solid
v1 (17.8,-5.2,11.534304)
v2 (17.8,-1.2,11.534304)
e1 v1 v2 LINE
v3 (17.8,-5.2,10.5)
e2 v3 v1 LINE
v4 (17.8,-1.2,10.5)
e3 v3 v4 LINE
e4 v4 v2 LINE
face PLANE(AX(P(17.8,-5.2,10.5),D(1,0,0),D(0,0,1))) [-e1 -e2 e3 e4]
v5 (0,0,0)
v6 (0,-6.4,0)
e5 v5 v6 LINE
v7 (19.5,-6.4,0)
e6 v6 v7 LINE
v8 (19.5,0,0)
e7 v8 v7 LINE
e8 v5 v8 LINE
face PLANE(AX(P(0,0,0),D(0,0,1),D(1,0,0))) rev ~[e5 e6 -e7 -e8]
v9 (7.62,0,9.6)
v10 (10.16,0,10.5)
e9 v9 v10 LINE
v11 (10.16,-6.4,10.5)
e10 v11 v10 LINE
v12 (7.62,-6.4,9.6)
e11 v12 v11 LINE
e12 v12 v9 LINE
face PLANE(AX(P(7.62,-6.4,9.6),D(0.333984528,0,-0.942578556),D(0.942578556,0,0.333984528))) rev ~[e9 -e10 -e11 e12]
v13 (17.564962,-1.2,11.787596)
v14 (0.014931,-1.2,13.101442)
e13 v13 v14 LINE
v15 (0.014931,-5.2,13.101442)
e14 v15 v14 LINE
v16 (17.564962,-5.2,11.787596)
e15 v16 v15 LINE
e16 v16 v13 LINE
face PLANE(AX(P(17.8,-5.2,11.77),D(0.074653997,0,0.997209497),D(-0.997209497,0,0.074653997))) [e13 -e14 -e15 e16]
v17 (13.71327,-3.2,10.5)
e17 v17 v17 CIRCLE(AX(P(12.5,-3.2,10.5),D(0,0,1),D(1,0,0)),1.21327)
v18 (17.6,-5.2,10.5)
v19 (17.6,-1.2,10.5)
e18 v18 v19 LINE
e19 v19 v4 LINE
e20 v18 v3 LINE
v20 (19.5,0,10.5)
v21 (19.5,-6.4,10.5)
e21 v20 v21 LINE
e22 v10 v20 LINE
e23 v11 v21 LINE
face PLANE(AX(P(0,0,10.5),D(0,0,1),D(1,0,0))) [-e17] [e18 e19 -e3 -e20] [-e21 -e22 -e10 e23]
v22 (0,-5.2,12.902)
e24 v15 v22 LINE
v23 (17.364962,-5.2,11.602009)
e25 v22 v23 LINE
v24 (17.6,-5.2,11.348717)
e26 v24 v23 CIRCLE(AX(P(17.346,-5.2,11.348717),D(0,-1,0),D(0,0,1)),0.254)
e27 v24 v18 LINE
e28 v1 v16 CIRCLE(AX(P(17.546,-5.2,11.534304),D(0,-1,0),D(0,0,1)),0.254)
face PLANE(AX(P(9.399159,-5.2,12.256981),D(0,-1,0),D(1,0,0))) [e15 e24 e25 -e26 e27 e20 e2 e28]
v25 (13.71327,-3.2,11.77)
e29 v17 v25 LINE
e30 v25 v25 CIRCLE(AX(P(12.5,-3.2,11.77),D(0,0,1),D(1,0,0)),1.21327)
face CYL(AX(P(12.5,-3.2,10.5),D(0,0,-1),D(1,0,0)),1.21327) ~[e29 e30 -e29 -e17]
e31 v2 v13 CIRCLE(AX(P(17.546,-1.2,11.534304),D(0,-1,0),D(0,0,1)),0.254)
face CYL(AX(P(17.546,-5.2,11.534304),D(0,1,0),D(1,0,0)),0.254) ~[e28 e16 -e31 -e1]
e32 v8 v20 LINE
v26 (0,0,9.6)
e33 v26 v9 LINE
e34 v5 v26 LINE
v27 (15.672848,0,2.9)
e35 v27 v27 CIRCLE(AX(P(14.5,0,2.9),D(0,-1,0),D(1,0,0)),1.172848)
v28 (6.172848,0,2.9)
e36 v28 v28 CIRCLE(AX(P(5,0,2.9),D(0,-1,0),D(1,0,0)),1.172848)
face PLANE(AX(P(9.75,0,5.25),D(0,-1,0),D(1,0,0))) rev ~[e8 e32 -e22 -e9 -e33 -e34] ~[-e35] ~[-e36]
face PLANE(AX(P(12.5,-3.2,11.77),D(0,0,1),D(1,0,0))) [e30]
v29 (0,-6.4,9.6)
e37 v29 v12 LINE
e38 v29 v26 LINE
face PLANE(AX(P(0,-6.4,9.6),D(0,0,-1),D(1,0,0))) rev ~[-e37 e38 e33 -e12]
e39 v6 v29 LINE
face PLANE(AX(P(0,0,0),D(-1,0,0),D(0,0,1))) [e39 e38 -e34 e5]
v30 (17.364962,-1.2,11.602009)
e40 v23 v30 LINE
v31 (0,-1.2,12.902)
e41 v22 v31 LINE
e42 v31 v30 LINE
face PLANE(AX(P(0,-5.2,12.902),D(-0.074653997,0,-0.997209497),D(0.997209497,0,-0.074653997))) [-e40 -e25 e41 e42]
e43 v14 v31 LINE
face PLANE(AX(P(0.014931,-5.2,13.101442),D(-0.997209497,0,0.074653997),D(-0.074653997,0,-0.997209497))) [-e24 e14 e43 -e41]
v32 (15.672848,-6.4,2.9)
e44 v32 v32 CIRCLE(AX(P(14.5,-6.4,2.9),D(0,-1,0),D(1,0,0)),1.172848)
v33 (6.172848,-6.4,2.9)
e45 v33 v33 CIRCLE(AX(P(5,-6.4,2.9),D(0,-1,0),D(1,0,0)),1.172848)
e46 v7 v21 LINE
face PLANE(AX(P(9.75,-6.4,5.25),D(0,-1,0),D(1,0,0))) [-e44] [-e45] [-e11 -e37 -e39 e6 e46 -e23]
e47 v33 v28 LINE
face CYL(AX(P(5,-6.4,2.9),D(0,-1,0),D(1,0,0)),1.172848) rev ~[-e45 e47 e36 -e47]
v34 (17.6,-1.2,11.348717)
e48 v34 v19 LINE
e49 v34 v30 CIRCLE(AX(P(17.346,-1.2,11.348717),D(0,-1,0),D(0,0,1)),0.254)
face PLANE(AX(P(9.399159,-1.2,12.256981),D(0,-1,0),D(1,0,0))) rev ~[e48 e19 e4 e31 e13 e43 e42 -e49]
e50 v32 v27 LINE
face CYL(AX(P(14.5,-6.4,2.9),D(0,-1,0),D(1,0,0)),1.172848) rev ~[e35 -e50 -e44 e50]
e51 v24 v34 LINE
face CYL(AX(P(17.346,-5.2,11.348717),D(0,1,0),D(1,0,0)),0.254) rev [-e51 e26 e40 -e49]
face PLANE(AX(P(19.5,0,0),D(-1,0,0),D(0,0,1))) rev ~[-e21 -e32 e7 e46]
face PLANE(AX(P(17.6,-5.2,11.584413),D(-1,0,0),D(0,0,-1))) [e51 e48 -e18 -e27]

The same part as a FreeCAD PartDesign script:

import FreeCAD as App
import Part
import Sketcher
from FreeCAD import Vector
Q = App.Units.Quantity


def edges_at(feature, points):
    """Names of the edges that pass closest to the given points."""
    edges = feature.Shape.Edges
    near = lambda p: min(range(len(edges)), key=lambda i: edges[i].distToShape(Part.Vertex(*p))[0])
    return sorted({f"Edge{near(p) + 1}" for p in points})


def add_polygon(sketch, points):
    """Adds a closed chain of lines whose ends are joined by coincident constraints."""
    first, n = sketch.GeometryCount, len(points)
    for a, b in zip(points, points[1:] + points[:1]):
        sketch.addGeometry(Part.LineSegment(App.Vector(*a, 0), App.Vector(*b, 0)), False)
    for i in range(n):
        sketch.addConstraint(Sketcher.Constraint("Coincident", first + i, 2, first + (i + 1) % n, 1))

doc = App.newDocument("Part")
params = doc.addObject("Spreadsheet::Sheet", "Params")
for row, (alias, value) in enumerate([
    ("sketch1_width", "19.5 mm"),
    ("sketch1_height", "10.5 mm"),
    ("pad1_length", "6.4 mm"),
    ("pocket1_length", "25.4 mm"),
    ("sketch3_height", "0.9 mm"),
    ("sketch3_width", "10.16 mm"),
    ("sketch3_width2", "7.62 mm"),
    ("pocket2_length", "25.4 mm"),
    ("pad2_length", "1.27 mm"),
    ("sketch5_width", "0.2 mm"),
    ("sketch5_length", "0.2 mm"),
    ("sketch5_height", "1.27 mm"),
    ("pad3_length", "4 mm"),
    ("fillet_radius", "0.254 mm"),
], start=1):
    params.set(f"A{row}", alias)
    params.set(f"B{row}", "=" + value)
    params.setAlias(f"B{row}", alias)

body = doc.addObject("PartDesign::Body", "Body")

sketch1 = body.newObject("Sketcher::SketchObject", "Sketch")
sketch1.AttachmentSupport = (doc.getObject("XZ_Plane"), [""])
sketch1.MapMode = "FlatFace"
add_polygon(sketch1, [(0, 10), (0, 0), (20, 0), (20, 10)])
sketch1.addConstraint([
    Sketcher.Constraint("Vertical", 0),
    Sketcher.Constraint("Horizontal", 1),
    Sketcher.Constraint("Vertical", 2),
    Sketcher.Constraint("Horizontal", 3),
    Sketcher.Constraint("Coincident", 0, 2, -1, 1),
    Sketcher.Constraint("DistanceX", 1, 1, 1, 2, Q("19.5 mm")),
    Sketcher.Constraint("DistanceY", 0, 2, 0, 1, Q("10.5 mm")),
])
sketch1.setExpression("Constraints[9]", "Params.sketch1_width")
sketch1.setExpression("Constraints[10]", "Params.sketch1_height")
pad1 = body.newObject("PartDesign::Pad", "Pad")
pad1.Profile = sketch1
pad1.setExpression("Length", "Params.pad1_length")

sketch2 = body.newObject("Sketcher::SketchObject", "Sketch001")
sketch2.AttachmentSupport = (doc.getObject("XZ_Plane"), [""])
sketch2.MapMode = "FlatFace"
sketch2.AttachmentOffset = App.Placement(Vector(0, 0, 6.4), App.Rotation())
sketch2.addGeometry([
    Part.Circle(Vector(5, 2.9, 0), Vector(0, 0, 1), 1.2),
    Part.Circle(Vector(14.5, 2.9, 0), Vector(0, 0, 1), 1.2),
], False)
sketch2.addConstraint([
    Sketcher.Constraint("Equal", 0, 1),
    Sketcher.Constraint("Horizontal", 0, 3, 1, 3),
    Sketcher.Constraint("DistanceX", -1, 1, 0, 3, Q("5 mm")),
    Sketcher.Constraint("DistanceY", -1, 1, 0, 3, Q("2.9 mm")),
    Sketcher.Constraint("DistanceX", -1, 1, 1, 3, Q("14.5 mm")),
    Sketcher.Constraint("Diameter", 0, Q("2.345697 mm")),
])
pocket1 = body.newObject("PartDesign::Pocket", "Pocket")
pocket1.Profile = sketch2
pocket1.setExpression("Length", "Params.pocket1_length")

sketch3 = body.newObject("Sketcher::SketchObject", "Sketch002")
sketch3.AttachmentSupport = (doc.getObject("XZ_Plane"), [""])
sketch3.MapMode = "FlatFace"
sketch3.AttachmentOffset = App.Placement(Vector(0, 0, 6.4), App.Rotation())
add_polygon(sketch3, [(10.2, 10.5), (0, 10.5), (0, 9.6), (7.6, 9.6)])
sketch3.addConstraint([
    Sketcher.Constraint("Horizontal", 0),
    Sketcher.Constraint("Vertical", 1),
    Sketcher.Constraint("Horizontal", 2),
    Sketcher.Constraint("PointOnObject", 0, 2, -2),
    Sketcher.Constraint("DistanceY", 1, 2, 1, 1, Q("0.9 mm")),
    Sketcher.Constraint("DistanceX", 0, 2, 0, 1, Q("10.16 mm")),
    Sketcher.Constraint("DistanceX", 2, 1, 2, 2, Q("7.62 mm")),
    Sketcher.Constraint("DistanceY", -1, 1, 0, 2, Q("10.5 mm")),
])
sketch3.setExpression("Constraints[8]", "Params.sketch3_height")
sketch3.setExpression("Constraints[9]", "Params.sketch3_width")
sketch3.setExpression("Constraints[10]", "Params.sketch3_width2")
pocket2 = body.newObject("PartDesign::Pocket", "Pocket001")
pocket2.Profile = sketch3
pocket2.setExpression("Length", "Params.pocket2_length")

sketch4 = body.newObject("Sketcher::SketchObject", "Sketch003")
sketch4.AttachmentSupport = (doc.getObject("XY_Plane"), [""])
sketch4.MapMode = "FlatFace"
sketch4.AttachmentOffset = App.Placement(Vector(0, 0, 10.5), App.Rotation())
sketch4.addGeometry(Part.Circle(Vector(12.5, -3.2, 0), Vector(0, 0, 1), 1.2), False)
sketch4.addConstraint([
    Sketcher.Constraint("DistanceX", -1, 1, 0, 3, Q("12.5 mm")),
    Sketcher.Constraint("DistanceY", 0, 3, -1, 1, Q("3.2 mm")),
    Sketcher.Constraint("Diameter", 0, Q("2.42654 mm")),
])
pad2 = body.newObject("PartDesign::Pad", "Pad001")
pad2.Profile = sketch4
pad2.setExpression("Length", "Params.pad2_length")

sketch5 = body.newObject("Sketcher::SketchObject", "Sketch004")
sketch5.AttachmentSupport = (doc.getObject("XZ_Plane"), [""])
sketch5.MapMode = "FlatFace"
sketch5.AttachmentOffset = App.Placement(Vector(0, 0, 5.2), App.Rotation())
add_polygon(sketch5, [(17.6, 11.58), (17.6, 10.5), (17.8, 10.5), (17.8, 11.77), (0.01, 13.1), (0, 12.9)])
sketch5.addConstraint([
    Sketcher.Constraint("Vertical", 0),
    Sketcher.Constraint("Horizontal", 1),
    Sketcher.Constraint("Vertical", 2),
    Sketcher.Constraint("PointOnObject", 4, 2, -2),
    Sketcher.Constraint("Perpendicular", 3, 4),
    Sketcher.Constraint("Perpendicular", 4, 5),
    Sketcher.Constraint("DistanceX", 1, 1, 1, 2, Q("0.2 mm")),
    Sketcher.Constraint("Distance", 4, Q("0.2 mm")),
    Sketcher.Constraint("DistanceY", 2, 1, 2, 2, Q("1.27 mm")),
    Sketcher.Constraint("DistanceX", -1, 1, 0, 2, Q("17.6 mm")),
    Sketcher.Constraint("DistanceY", -1, 1, 0, 2, Q("10.5 mm")),
    Sketcher.Constraint("DistanceY", -1, 1, 4, 2, Q("12.902 mm")),
])
sketch5.setExpression("Constraints[12]", "Params.sketch5_width")
sketch5.setExpression("Constraints[13]", "Params.sketch5_length")
sketch5.setExpression("Constraints[14]", "Params.sketch5_height")
pad3 = body.newObject("PartDesign::Pad", "Pad002")
pad3.Profile = sketch5
pad3.setExpression("Length", "Params.pad3_length")
pad3.Reversed = True
doc.recompute()

fillet = body.newObject("PartDesign::Fillet", "Fillet")
fillet.Base = (pad3, edges_at(pad3, [(17.8, -3.2, 11.77), (17.6, -3.2, 11.584)]))
fillet.setExpression("Radius", "Params.fillet_radius")

doc.recompute()
